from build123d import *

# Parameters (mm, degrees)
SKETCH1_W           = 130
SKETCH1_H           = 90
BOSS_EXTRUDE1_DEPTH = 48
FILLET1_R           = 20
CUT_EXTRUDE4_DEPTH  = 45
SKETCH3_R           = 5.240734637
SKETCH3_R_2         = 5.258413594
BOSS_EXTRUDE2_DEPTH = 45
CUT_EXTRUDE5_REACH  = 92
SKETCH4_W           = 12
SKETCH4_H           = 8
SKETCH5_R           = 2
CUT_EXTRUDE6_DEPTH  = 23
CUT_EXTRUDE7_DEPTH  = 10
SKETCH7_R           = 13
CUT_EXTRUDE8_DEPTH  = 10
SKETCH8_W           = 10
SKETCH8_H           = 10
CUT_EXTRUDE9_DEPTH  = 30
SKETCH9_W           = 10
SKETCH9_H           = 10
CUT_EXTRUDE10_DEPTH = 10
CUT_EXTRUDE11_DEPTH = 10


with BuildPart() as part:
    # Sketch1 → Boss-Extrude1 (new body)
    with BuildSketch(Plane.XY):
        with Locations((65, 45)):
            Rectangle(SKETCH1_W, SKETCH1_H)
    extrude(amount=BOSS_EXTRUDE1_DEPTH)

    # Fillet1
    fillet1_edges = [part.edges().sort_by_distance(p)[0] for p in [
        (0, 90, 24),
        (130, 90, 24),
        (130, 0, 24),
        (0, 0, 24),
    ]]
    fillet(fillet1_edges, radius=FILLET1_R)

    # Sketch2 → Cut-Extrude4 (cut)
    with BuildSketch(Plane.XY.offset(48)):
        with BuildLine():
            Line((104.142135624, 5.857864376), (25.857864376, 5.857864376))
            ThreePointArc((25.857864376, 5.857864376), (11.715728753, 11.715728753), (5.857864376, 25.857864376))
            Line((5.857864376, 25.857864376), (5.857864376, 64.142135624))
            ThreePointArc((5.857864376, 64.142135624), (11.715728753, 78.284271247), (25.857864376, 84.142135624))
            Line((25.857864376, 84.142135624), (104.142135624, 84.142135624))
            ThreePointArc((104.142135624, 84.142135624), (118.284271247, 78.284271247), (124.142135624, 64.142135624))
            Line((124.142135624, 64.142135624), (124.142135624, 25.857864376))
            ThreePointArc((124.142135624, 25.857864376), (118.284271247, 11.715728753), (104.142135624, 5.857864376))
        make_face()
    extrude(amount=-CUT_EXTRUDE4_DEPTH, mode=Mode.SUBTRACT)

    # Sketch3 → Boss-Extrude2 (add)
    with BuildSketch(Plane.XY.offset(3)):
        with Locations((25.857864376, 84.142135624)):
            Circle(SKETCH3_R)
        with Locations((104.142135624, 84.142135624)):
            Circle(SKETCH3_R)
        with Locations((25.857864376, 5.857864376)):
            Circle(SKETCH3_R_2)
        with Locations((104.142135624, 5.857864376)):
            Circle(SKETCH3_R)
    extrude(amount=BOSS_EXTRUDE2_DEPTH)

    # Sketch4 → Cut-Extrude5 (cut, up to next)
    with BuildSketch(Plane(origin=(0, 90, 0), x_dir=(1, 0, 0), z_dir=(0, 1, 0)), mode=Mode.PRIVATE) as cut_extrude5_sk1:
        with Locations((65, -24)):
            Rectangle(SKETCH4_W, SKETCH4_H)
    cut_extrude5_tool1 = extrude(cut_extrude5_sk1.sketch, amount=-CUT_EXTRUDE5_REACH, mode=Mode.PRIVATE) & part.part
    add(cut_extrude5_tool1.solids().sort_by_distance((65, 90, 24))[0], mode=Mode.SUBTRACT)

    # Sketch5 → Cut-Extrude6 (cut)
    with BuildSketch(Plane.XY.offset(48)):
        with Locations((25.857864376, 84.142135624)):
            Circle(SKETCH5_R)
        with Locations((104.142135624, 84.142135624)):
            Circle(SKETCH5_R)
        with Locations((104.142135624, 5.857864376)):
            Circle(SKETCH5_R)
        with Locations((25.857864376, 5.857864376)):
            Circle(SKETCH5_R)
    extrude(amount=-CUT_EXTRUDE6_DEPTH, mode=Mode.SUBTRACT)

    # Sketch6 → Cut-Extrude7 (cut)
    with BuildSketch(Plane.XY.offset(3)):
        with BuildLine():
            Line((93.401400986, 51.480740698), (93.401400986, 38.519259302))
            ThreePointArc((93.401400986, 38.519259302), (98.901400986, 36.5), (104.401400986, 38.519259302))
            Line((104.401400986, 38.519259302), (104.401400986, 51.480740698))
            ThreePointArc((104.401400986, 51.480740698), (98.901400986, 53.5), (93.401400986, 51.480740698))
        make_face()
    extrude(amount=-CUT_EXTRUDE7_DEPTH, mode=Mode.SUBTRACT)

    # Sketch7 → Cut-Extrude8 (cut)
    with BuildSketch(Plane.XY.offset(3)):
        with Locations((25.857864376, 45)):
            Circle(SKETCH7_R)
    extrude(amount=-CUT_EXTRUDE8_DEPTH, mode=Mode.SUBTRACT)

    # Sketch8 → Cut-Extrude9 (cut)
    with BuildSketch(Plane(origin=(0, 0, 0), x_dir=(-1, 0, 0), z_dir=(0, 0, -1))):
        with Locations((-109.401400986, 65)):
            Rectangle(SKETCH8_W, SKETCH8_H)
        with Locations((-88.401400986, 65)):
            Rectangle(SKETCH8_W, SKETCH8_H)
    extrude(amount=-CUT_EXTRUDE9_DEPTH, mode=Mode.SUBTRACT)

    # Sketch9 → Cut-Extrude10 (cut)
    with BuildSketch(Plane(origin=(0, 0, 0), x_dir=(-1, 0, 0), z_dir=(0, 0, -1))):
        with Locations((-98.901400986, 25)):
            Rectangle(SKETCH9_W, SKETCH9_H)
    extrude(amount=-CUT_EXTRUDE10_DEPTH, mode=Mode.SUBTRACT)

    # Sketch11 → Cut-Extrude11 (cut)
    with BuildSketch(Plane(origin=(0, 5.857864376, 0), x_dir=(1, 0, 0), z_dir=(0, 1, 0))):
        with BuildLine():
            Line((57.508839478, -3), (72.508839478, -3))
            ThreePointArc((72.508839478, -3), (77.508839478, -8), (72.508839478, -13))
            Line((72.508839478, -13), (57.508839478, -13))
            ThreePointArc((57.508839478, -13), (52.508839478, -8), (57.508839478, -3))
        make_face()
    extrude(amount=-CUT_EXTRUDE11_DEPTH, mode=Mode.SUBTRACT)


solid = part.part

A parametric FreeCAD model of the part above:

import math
import FreeCAD as App
import Part
import Sketcher


def edges_at(feature, points):
    """Names of the edges that pass closest to the given points."""
    edges = feature.Shape.Edges
    near = lambda p: min(range(len(edges)), key=lambda i: edges[i].distToShape(Part.Vertex(*p))[0])
    return sorted({f"Edge{near(p) + 1}" for p in points})

doc = App.newDocument("Part")
body = doc.addObject("PartDesign::Body", "Body")

sketch1 = body.newObject("Sketcher::SketchObject", "Sketch")
sketch1.AttachmentSupport = (doc.getObject("XY_Plane"), [""])
sketch1.MapMode = "FlatFace"
sketch1.addGeometry([
    Part.LineSegment(App.Vector(0, 90, 0), App.Vector(0, 0, 0)),
    Part.LineSegment(App.Vector(0, 0, 0), App.Vector(130, 0, 0)),
    Part.LineSegment(App.Vector(130, 0, 0), App.Vector(130, 90, 0)),
    Part.LineSegment(App.Vector(130, 90, 0), App.Vector(0, 90, 0)),
], False)
sketch1.addConstraint([
    Sketcher.Constraint("Coincident", 0, 2, 1, 1),
    Sketcher.Constraint("Coincident", 1, 2, 2, 1),
    Sketcher.Constraint("Coincident", 2, 2, 3, 1),
    Sketcher.Constraint("Coincident", 3, 2, 0, 1),
    Sketcher.Constraint("Vertical", 0),
    Sketcher.Constraint("Horizontal", 1),
    Sketcher.Constraint("Vertical", 2),
    Sketcher.Constraint("Horizontal", 3),
    Sketcher.Constraint("Coincident", 0, 2, -1, 1),
    Sketcher.Constraint("DistanceX", 1, 1, 1, 2, 130.0),
    Sketcher.Constraint("DistanceY", 0, 2, 0, 1, 90.0),
])
pad1 = body.newObject("PartDesign::Pad", "Pad")
pad1.Profile = sketch1
pad1.Length = 48
doc.recompute()

fillet = body.newObject("PartDesign::Fillet", "Fillet")
fillet.Base = (pad1, edges_at(pad1, [
    (0, 90, 24),
    (130, 90, 24),
    (130, 0, 24),
    (0, 0, 24),
]))
fillet.Radius = 20

sketch2 = body.newObject("Sketcher::SketchObject", "Sketch001")
sketch2.AttachmentSupport = (doc.getObject("XY_Plane"), [""])
sketch2.MapMode = "FlatFace"
sketch2.AttachmentOffset = App.Placement(App.Vector(0, 0, 48), App.Rotation())
sketch2.addGeometry([
    Part.LineSegment(App.Vector(26, 6, 0), App.Vector(104, 6, 0)),
    Part.ArcOfCircle(Part.Circle(App.Vector(104, 26, 0), App.Vector(0, 0, 1), 20), math.radians(-90), math.radians(0)),
    Part.LineSegment(App.Vector(124, 26, 0), App.Vector(124, 64, 0)),
    Part.ArcOfCircle(Part.Circle(App.Vector(104, 64, 0), App.Vector(0, 0, 1), 20), math.radians(0), math.radians(90)),
    Part.LineSegment(App.Vector(104, 84, 0), App.Vector(26, 84, 0)),
    Part.ArcOfCircle(Part.Circle(App.Vector(26, 64, 0), App.Vector(0, 0, 1), 20), math.radians(90), math.radians(180)),
    Part.LineSegment(App.Vector(6, 64, 0), App.Vector(6, 26, 0)),
    Part.ArcOfCircle(Part.Circle(App.Vector(26, 26, 0), App.Vector(0, 0, 1), 20), math.radians(-180), math.radians(-90)),
], False)
sketch2.addConstraint([
    Sketcher.Constraint("Tangent", 0, 2, 1, 1),
    Sketcher.Constraint("Tangent", 1, 2, 2, 1),
    Sketcher.Constraint("Tangent", 2, 2, 3, 1),
    Sketcher.Constraint("Tangent", 3, 2, 4, 1),
    Sketcher.Constraint("Tangent", 4, 2, 5, 1),
    Sketcher.Constraint("Tangent", 5, 2, 6, 1),
    Sketcher.Constraint("Tangent", 6, 2, 7, 1),
    Sketcher.Constraint("Tangent", 7, 2, 0, 1),
    Sketcher.Constraint("Horizontal", 0),
    Sketcher.Constraint("Vertical", 2),
    Sketcher.Constraint("Horizontal", 4),
    Sketcher.Constraint("Vertical", 6),
    Sketcher.Constraint("Equal", 1, 3),
    Sketcher.Constraint("Equal", 3, 5),
    Sketcher.Constraint("Equal", 5, 7),
    Sketcher.Constraint("Radius", 1, 20.0),
    Sketcher.Constraint("DistanceX", 0, 1, 0, 2, 78.284271),
    Sketcher.Constraint("DistanceY", 2, 1, 2, 2, 38.284271),
    Sketcher.Constraint("DistanceX", -1, 1, 1, 3, 104.142136),
    Sketcher.Constraint("DistanceY", -1, 1, 1, 3, 25.857864),
])
pocket1 = body.newObject("PartDesign::Pocket", "Pocket")
pocket1.Profile = sketch2
pocket1.Length = 45

sketch3 = body.newObject("Sketcher::SketchObject", "Sketch002")
sketch3.AttachmentSupport = (doc.getObject("XY_Plane"), [""])
sketch3.MapMode = "FlatFace"
sketch3.AttachmentOffset = App.Placement(App.Vector(0, 0, 3), App.Rotation())
sketch3.addGeometry([
    Part.Circle(App.Vector(26, 84, 0), App.Vector(0, 0, 1), 5),
    Part.Circle(App.Vector(104, 84, 0), App.Vector(0, 0, 1), 5),
    Part.Circle(App.Vector(26, 6, 0), App.Vector(0, 0, 1), 5),
    Part.Circle(App.Vector(104, 6, 0), App.Vector(0, 0, 1), 5),
], False)
sketch3.addConstraint([
    Sketcher.Constraint("Equal", 0, 1),
    Sketcher.Constraint("Equal", 1, 3),
    Sketcher.Constraint("Horizontal", 0, 3, 1, 3),
    Sketcher.Constraint("Horizontal", 2, 3, 3, 3),
    Sketcher.Constraint("Vertical", 0, 3, 2, 3),
    Sketcher.Constraint("Vertical", 1, 3, 3, 3),
    Sketcher.Constraint("Diameter", 0, 10.481469),
    Sketcher.Constraint("Diameter", 2, 10.516827),
    Sketcher.Constraint("DistanceX", 0, 3, 1, 3, 78.284271),
    Sketcher.Constraint("DistanceY", 2, 3, 0, 3, 78.284271),
    Sketcher.Constraint("DistanceX", -1, 1, 0, 3, 25.857864),
    Sketcher.Constraint("DistanceY", -1, 1, 0, 3, 84.142136),
])
pad2 = body.newObject("PartDesign::Pad", "Pad001")
pad2.Profile = sketch3
pad2.Length = 45

sketch4 = body.newObject("Sketcher::SketchObject", "Sketch003")
sketch4.AttachmentSupport = (doc.getObject("XZ_Plane"), [""])
sketch4.MapMode = "FlatFace"
sketch4.AttachmentOffset = App.Placement(App.Vector(0, 0, -90), App.Rotation())
sketch4.addGeometry([
    Part.LineSegment(App.Vector(59, 20, 0), App.Vector(59, 28, 0)),
    Part.LineSegment(App.Vector(59, 28, 0), App.Vector(71, 28, 0)),
    Part.LineSegment(App.Vector(71, 28, 0), App.Vector(71, 20, 0)),
    Part.LineSegment(App.Vector(71, 20, 0), App.Vector(59, 20, 0)),
], False)
sketch4.addConstraint([
    Sketcher.Constraint("Coincident", 0, 2, 1, 1),
    Sketcher.Constraint("Coincident", 1, 2, 2, 1),
    Sketcher.Constraint("Coincident", 2, 2, 3, 1),
    Sketcher.Constraint("Coincident", 3, 2, 0, 1),
    Sketcher.Constraint("Vertical", 0),
    Sketcher.Constraint("Horizontal", 1),
    Sketcher.Constraint("Vertical", 2),
    Sketcher.Constraint("Horizontal", 3),
    Sketcher.Constraint("DistanceX", 1, 1, 1, 2, 12.0),
    Sketcher.Constraint("DistanceY", 0, 1, 0, 2, 8.0),
    Sketcher.Constraint("DistanceX", -1, 1, 0, 2, 59.0),
    Sketcher.Constraint("DistanceY", -1, 1, 0, 2, 28.0),
])
pocket2 = body.newObject("PartDesign::Pocket", "Pocket001")
pocket2.Profile = sketch4
pocket2.Type = "UpToFirst"
pocket2.Reversed = True

sketch5 = body.newObject("Sketcher::SketchObject", "Sketch004")
sketch5.AttachmentSupport = (doc.getObject("XY_Plane"), [""])
sketch5.MapMode = "FlatFace"
sketch5.AttachmentOffset = App.Placement(App.Vector(0, 0, 48), App.Rotation())
sketch5.addGeometry([
    Part.Circle(App.Vector(25.9, 84.1, 0), App.Vector(0, 0, 1), 2),
    Part.Circle(App.Vector(104.1, 84.1, 0), App.Vector(0, 0, 1), 2),
    Part.Circle(App.Vector(104.1, 5.9, 0), App.Vector(0, 0, 1), 2),
    Part.Circle(App.Vector(25.9, 5.9, 0), App.Vector(0, 0, 1), 2),
], False)
sketch5.addConstraint([
    Sketcher.Constraint("Equal", 0, 1),
    Sketcher.Constraint("Equal", 1, 2),
    Sketcher.Constraint("Equal", 2, 3),
    Sketcher.Constraint("Horizontal", 0, 3, 1, 3),
    Sketcher.Constraint("Horizontal", 2, 3, 3, 3),
    Sketcher.Constraint("Vertical", 1, 3, 2, 3),
    Sketcher.Constraint("Vertical", 0, 3, 3, 3),
    Sketcher.Constraint("Diameter", 0, 4.0),
    Sketcher.Constraint("DistanceX", 0, 3, 1, 3, 78.284271),
    Sketcher.Constraint("DistanceY", 2, 3, 1, 3, 78.284271),
    Sketcher.Constraint("DistanceX", -1, 1, 0, 3, 25.857864),
    Sketcher.Constraint("DistanceY", -1, 1, 0, 3, 84.142136),
])
pocket3 = body.newObject("PartDesign::Pocket", "Pocket002")
pocket3.Profile = sketch5
pocket3.Length = 23

sketch6 = body.newObject("Sketcher::SketchObject", "Sketch005")
sketch6.AttachmentSupport = (doc.getObject("XY_Plane"), [""])
sketch6.MapMode = "FlatFace"
sketch6.AttachmentOffset = App.Placement(App.Vector(0, 0, 3), App.Rotation())
sketch6.addGeometry([
    Part.LineSegment(App.Vector(93, 51, 0), App.Vector(93, 39, 0)),
    Part.ArcOfCircle(Part.Circle(App.Vector(99, 45, 0), App.Vector(0, 0, 1), 8), math.radians(-130), math.radians(-50)),
    Part.LineSegment(App.Vector(104, 39, 0), App.Vector(104, 51, 0)),
    Part.ArcOfCircle(Part.Circle(App.Vector(99, 45, 0), App.Vector(0, 0, 1), 8), math.radians(50), math.radians(130)),
], False)
sketch6.addConstraint([
    Sketcher.Constraint("Coincident", 0, 2, 1, 1),
    Sketcher.Constraint("Coincident", 1, 2, 2, 1),
    Sketcher.Constraint("Coincident", 2, 2, 3, 1),
    Sketcher.Constraint("Coincident", 3, 2, 0, 1),
    Sketcher.Constraint("Vertical", 0),
    Sketcher.Constraint("Vertical", 2),
    Sketcher.Constraint("Coincident", 3, 3, 1, 3),
    Sketcher.Constraint("Equal", 1, 3),
    Sketcher.Constraint("Horizontal", 0, 2, 1, 2),
    Sketcher.Constraint("Radius", 1, 8.5),
    Sketcher.Constraint("DistanceY", -1, 1, 1, 3, 45.0),
    Sketcher.Constraint("DistanceX", 0, 2, 1, 2, 11.0),
    Sketcher.Constraint("DistanceX", -1, 1, 1, 3, 98.901401),
])
pocket4 = body.newObject("PartDesign::Pocket", "Pocket003")
pocket4.Profile = sketch6
pocket4.Length = 10

sketch7 = body.newObject("Sketcher::SketchObject", "Sketch006")
sketch7.AttachmentSupport = (doc.getObject("XY_Plane"), [""])
sketch7.MapMode = "FlatFace"
sketch7.AttachmentOffset = App.Placement(App.Vector(0, 0, 3), App.Rotation())
sketch7.addGeometry(Part.Circle(App.Vector(26, 45, 0), App.Vector(0, 0, 1), 13), False)
sketch7.addConstraint([
    Sketcher.Constraint("Diameter", 0, 26.0),
    Sketcher.Constraint("DistanceY", -1, 1, 0, 3, 45.0),
    Sketcher.Constraint("DistanceX", -1, 1, 0, 3, 25.857864),
])
pocket5 = body.newObject("PartDesign::Pocket", "Pocket004")
pocket5.Profile = sketch7
pocket5.Length = 10

sketch8 = body.newObject("Sketcher::SketchObject", "Sketch007")
sketch8.AttachmentSupport = (doc.getObject("XY_Plane"), [""])
sketch8.MapMode = "FlatFace"
sketch8.addGeometry([
    Part.LineSegment(App.Vector(114, 70, 0), App.Vector(114, 60, 0)),
    Part.LineSegment(App.Vector(114, 60, 0), App.Vector(104, 60, 0)),
    Part.LineSegment(App.Vector(104, 60, 0), App.Vector(104, 70, 0)),
    Part.LineSegment(App.Vector(104, 70, 0), App.Vector(114, 70, 0)),
    Part.LineSegment(App.Vector(93, 70, 0), App.Vector(93, 60, 0)),
    Part.LineSegment(App.Vector(93, 60, 0), App.Vector(83, 60, 0)),
    Part.LineSegment(App.Vector(83, 60, 0), App.Vector(83, 70, 0)),
    Part.LineSegment(App.Vector(83, 70, 0), App.Vector(93, 70, 0)),
], False)
sketch8.addConstraint([
    Sketcher.Constraint("Coincident", 0, 2, 1, 1),
    Sketcher.Constraint("Coincident", 1, 2, 2, 1),
    Sketcher.Constraint("Coincident", 2, 2, 3, 1),
    Sketcher.Constraint("Coincident", 3, 2, 0, 1),
    Sketcher.Constraint("Coincident", 4, 2, 5, 1),
    Sketcher.Constraint("Coincident", 5, 2, 6, 1),
    Sketcher.Constraint("Coincident", 6, 2, 7, 1),
    Sketcher.Constraint("Coincident", 7, 2, 4, 1),
    Sketcher.Constraint("Vertical", 0),
    Sketcher.Constraint("Horizontal", 1),
    Sketcher.Constraint("Vertical", 2),
    Sketcher.Constraint("Horizontal", 3),
    Sketcher.Constraint("Vertical", 4),
    Sketcher.Constraint("Horizontal", 5),
    Sketcher.Constraint("Vertical", 6),
    Sketcher.Constraint("Horizontal", 7),
    Sketcher.Constraint("Horizontal", 1, 2, 4, 2),
    Sketcher.Constraint("Horizontal", 3, 2, 6, 2),
    Sketcher.Constraint("Equal", 3, 5),
    Sketcher.Constraint("Equal", 7, 0),
    Sketcher.Constraint("DistanceX", 1, 2, 1, 1, 10.0),
    Sketcher.Constraint("DistanceY", -1, 1, 0, 2, 60.0),
    Sketcher.Constraint("DistanceX", 4, 2, 1, 2, 11.0),
    Sketcher.Constraint("DistanceX", -1, 1, 0, 2, 114.401401),
])
pocket6 = body.newObject("PartDesign::Pocket", "Pocket005")
pocket6.Profile = sketch8
pocket6.Length = 30
pocket6.Reversed = True

sketch9 = body.newObject("Sketcher::SketchObject", "Sketch008")
sketch9.AttachmentSupport = (doc.getObject("XY_Plane"), [""])
sketch9.MapMode = "FlatFace"
sketch9.addGeometry([
    Part.LineSegment(App.Vector(104, 30, 0), App.Vector(104, 20, 0)),
    Part.LineSegment(App.Vector(104, 20, 0), App.Vector(94, 20, 0)),
    Part.LineSegment(App.Vector(94, 20, 0), App.Vector(94, 30, 0)),
    Part.LineSegment(App.Vector(94, 30, 0), App.Vector(104, 30, 0)),
], False)
sketch9.addConstraint([
    Sketcher.Constraint("Coincident", 0, 2, 1, 1),
    Sketcher.Constraint("Coincident", 1, 2, 2, 1),
    Sketcher.Constraint("Coincident", 2, 2, 3, 1),
    Sketcher.Constraint("Coincident", 3, 2, 0, 1),
    Sketcher.Constraint("Vertical", 0),
    Sketcher.Constraint("Horizontal", 1),
    Sketcher.Constraint("Vertical", 2),
    Sketcher.Constraint("Horizontal", 3),
    Sketcher.Constraint("Equal", 3, 0),
    Sketcher.Constraint("DistanceX", 1, 2, 1, 1, 10.0),
    Sketcher.Constraint("DistanceY", -1, 1, 0, 2, 20.0),
    Sketcher.Constraint("DistanceX", -1, 1, 0, 2, 103.901401),
])
pocket7 = body.newObject("PartDesign::Pocket", "Pocket006")
pocket7.Profile = sketch9
pocket7.Length = 10
pocket7.Reversed = True

sketch10 = body.newObject("Sketcher::SketchObject", "Sketch009")
sketch10.AttachmentSupport = (doc.getObject("XZ_Plane"), [""])
sketch10.MapMode = "FlatFace"
sketch10.AttachmentOffset = App.Placement(App.Vector(0, 0, -5.857864), App.Rotation())
sketch10.addGeometry([
    Part.LineSegment(App.Vector(73, 3, 0), App.Vector(58, 3, 0)),
    Part.ArcOfCircle(Part.Circle(App.Vector(58, 8, 0), App.Vector(0, 0, 1), 5), math.radians(90), math.radians(270)),
    Part.LineSegment(App.Vector(58, 13, 0), App.Vector(73, 13, 0)),
    Part.ArcOfCircle(Part.Circle(App.Vector(73, 8, 0), App.Vector(0, 0, 1), 5), math.radians(-90), math.radians(90)),
], False)
sketch10.addConstraint([
    Sketcher.Constraint("Tangent", 0, 2, 1, 2),
    Sketcher.Constraint("Tangent", 1, 1, 2, 1),
    Sketcher.Constraint("Tangent", 2, 2, 3, 2),
    Sketcher.Constraint("Tangent", 3, 1, 0, 1),
    Sketcher.Constraint("Horizontal", 0),
    Sketcher.Constraint("Horizontal", 2),
    Sketcher.Constraint("Radius", 1, 5.0),
    Sketcher.Constraint("DistanceX", 0, 2, 0, 1, 15.0),
    Sketcher.Constraint("DistanceY", -1, 1, 1, 3, 8.0),
    Sketcher.Constraint("DistanceX", -1, 1, 1, 3, 57.508839),
])
pocket8 = body.newObject("PartDesign::Pocket", "Pocket007")
pocket8.Profile = sketch10
pocket8.Length = 10
pocket8.Reversed = True

doc.recompute()
